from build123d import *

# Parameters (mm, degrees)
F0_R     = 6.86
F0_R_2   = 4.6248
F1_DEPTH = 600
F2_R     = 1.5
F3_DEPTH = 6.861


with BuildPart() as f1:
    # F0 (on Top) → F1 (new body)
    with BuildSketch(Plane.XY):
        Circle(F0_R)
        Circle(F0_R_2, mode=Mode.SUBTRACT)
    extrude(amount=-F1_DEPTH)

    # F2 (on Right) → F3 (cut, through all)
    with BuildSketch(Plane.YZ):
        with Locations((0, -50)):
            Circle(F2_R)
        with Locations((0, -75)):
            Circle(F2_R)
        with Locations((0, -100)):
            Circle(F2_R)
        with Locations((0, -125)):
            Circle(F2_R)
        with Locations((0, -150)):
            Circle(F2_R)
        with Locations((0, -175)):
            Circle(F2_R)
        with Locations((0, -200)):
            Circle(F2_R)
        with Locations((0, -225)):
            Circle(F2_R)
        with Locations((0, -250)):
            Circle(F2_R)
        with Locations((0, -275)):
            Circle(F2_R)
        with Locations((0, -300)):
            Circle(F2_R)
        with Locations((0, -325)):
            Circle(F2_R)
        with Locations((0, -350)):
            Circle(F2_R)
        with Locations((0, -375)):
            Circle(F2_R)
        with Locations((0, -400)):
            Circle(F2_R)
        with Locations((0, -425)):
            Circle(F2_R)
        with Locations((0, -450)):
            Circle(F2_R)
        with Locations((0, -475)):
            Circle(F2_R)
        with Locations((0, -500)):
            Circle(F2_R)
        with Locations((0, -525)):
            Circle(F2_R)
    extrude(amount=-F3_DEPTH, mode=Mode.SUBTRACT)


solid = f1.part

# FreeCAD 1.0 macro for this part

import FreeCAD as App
import Part
import Sketcher
Q = App.Units.Quantity

doc = App.newDocument("Part")
body = doc.addObject("PartDesign::Body", "Body")

sketch1 = body.newObject("Sketcher::SketchObject", "Sketch")
sketch1.AttachmentSupport = (doc.getObject("XY_Plane"), [""])
sketch1.MapMode = "FlatFace"
sketch1.addGeometry(Part.Circle(App.Vector(0, 0, 0), App.Vector(0, 0, 1), 6.9), False)
sketch1.addGeometry(Part.Circle(App.Vector(0, 0, 0), App.Vector(0, 0, 1), 4.6), False)
sketch1.addConstraint(Sketcher.Constraint("Coincident", 0, 3, -1, 1))
sketch1.addConstraint(Sketcher.Constraint("Coincident", 1, 3, -1, 1))
sketch1.addConstraint(Sketcher.Constraint("Diameter", 0, Q("13.72 mm")))
sketch1.addConstraint(Sketcher.Constraint("Diameter", 1, Q("9.2496 mm")))
pad1 = body.newObject("PartDesign::Pad", "Pad")
pad1.Profile = sketch1
pad1.Length = 600
pad1.Reversed = True

sketch2 = body.newObject("Sketcher::SketchObject", "Sketch001")
sketch2.AttachmentSupport = (doc.getObject("YZ_Plane"), [""])
sketch2.MapMode = "FlatFace"
sketch2.addGeometry(Part.Circle(App.Vector(0, -50, 0), App.Vector(0, 0, 1), 1.5), False)
sketch2.addGeometry(Part.Circle(App.Vector(0, -75, 0), App.Vector(0, 0, 1), 1.5), False)
sketch2.addGeometry(Part.Circle(App.Vector(0, -100, 0), App.Vector(0, 0, 1), 1.5), False)
sketch2.addGeometry(Part.Circle(App.Vector(0, -125, 0), App.Vector(0, 0, 1), 1.5), False)
sketch2.addGeometry(Part.Circle(App.Vector(0, -150, 0), App.Vector(0, 0, 1), 1.5), False)
sketch2.addGeometry(Part.Circle(App.Vector(0, -175, 0), App.Vector(0, 0, 1), 1.5), False)
sketch2.addGeometry(Part.Circle(App.Vector(0, -200, 0), App.Vector(0, 0, 1), 1.5), False)
sketch2.addGeometry(Part.Circle(App.Vector(0, -225, 0), App.Vector(0, 0, 1), 1.5), False)
sketch2.addGeometry(Part.Circle(App.Vector(0, -250, 0), App.Vector(0, 0, 1), 1.5), False)
sketch2.addGeometry(Part.Circle(App.Vector(0, -275, 0), App.Vector(0, 0, 1), 1.5), False)
sketch2.addGeometry(Part.Circle(App.Vector(0, -300, 0), App.Vector(0, 0, 1), 1.5), False)
sketch2.addGeometry(Part.Circle(App.Vector(0, -325, 0), App.Vector(0, 0, 1), 1.5), False)
sketch2.addGeometry(Part.Circle(App.Vector(0, -350, 0), App.Vector(0, 0, 1), 1.5), False)
sketch2.addGeometry(Part.Circle(App.Vector(0, -375, 0), App.Vector(0, 0, 1), 1.5), False)
sketch2.addGeometry(Part.Circle(App.Vector(0, -400, 0), App.Vector(0, 0, 1), 1.5), False)
sketch2.addGeometry(Part.Circle(App.Vector(0, -425, 0), App.Vector(0, 0, 1), 1.5), False)
sketch2.addGeometry(Part.Circle(App.Vector(0, -450, 0), App.Vector(0, 0, 1), 1.5), False)
sketch2.addGeometry(Part.Circle(App.Vector(0, -475, 0), App.Vector(0, 0, 1), 1.5), False)
sketch2.addGeometry(Part.Circle(App.Vector(0, -500, 0), App.Vector(0, 0, 1), 1.5), False)
sketch2.addGeometry(Part.Circle(App.Vector(0, -525, 0), App.Vector(0, 0, 1), 1.5), False)
sketch2.addConstraint(Sketcher.Constraint("Equal", 0, 1))
sketch2.addConstraint(Sketcher.Constraint("Equal", 1, 2))
sketch2.addConstraint(Sketcher.Constraint("Equal", 2, 3))
sketch2.addConstraint(Sketcher.Constraint("Equal", 3, 4))
sketch2.addConstraint(Sketcher.Constraint("Equal", 4, 5))
sketch2.addConstraint(Sketcher.Constraint("Equal", 5, 6))
sketch2.addConstraint(Sketcher.Constraint("Equal", 6, 7))
sketch2.addConstraint(Sketcher.Constraint("Equal", 7, 8))
sketch2.addConstraint(Sketcher.Constraint("Equal", 8, 9))
sketch2.addConstraint(Sketcher.Constraint("Equal", 9, 10))
sketch2.addConstraint(Sketcher.Constraint("Equal", 10, 11))
sketch2.addConstraint(Sketcher.Constraint("Equal", 11, 12))
sketch2.addConstraint(Sketcher.Constraint("Equal", 12, 13))
sketch2.addConstraint(Sketcher.Constraint("Equal", 13, 14))
sketch2.addConstraint(Sketcher.Constraint("Equal", 14, 15))
sketch2.addConstraint(Sketcher.Constraint("Equal", 15, 16))
sketch2.addConstraint(Sketcher.Constraint("Equal", 16, 17))
sketch2.addConstraint(Sketcher.Constraint("Equal", 17, 18))
sketch2.addConstraint(Sketcher.Constraint("Equal", 18, 19))
sketch2.addConstraint(Sketcher.Constraint("PointOnObject", 0, 3, -2))
sketch2.addConstraint(Sketcher.Constraint("PointOnObject", 1, 3, -2))
sketch2.addConstraint(Sketcher.Constraint("PointOnObject", 2, 3, -2))
sketch2.addConstraint(Sketcher.Constraint("PointOnObject", 3, 3, -2))
sketch2.addConstraint(Sketcher.Constraint("PointOnObject", 4, 3, -2))
sketch2.addConstraint(Sketcher.Constraint("PointOnObject", 5, 3, -2))
sketch2.addConstraint(Sketcher.Constraint("PointOnObject", 6, 3, -2))
sketch2.addConstraint(Sketcher.Constraint("PointOnObject", 7, 3, -2))
sketch2.addConstraint(Sketcher.Constraint("PointOnObject", 8, 3, -2))
sketch2.addConstraint(Sketcher.Constraint("PointOnObject", 9, 3, -2))
sketch2.addConstraint(Sketcher.Constraint("PointOnObject", 10, 3, -2))
sketch2.addConstraint(Sketcher.Constraint("PointOnObject", 11, 3, -2))
sketch2.addConstraint(Sketcher.Constraint("PointOnObject", 12, 3, -2))
sketch2.addConstraint(Sketcher.Constraint("PointOnObject", 13, 3, -2))
sketch2.addConstraint(Sketcher.Constraint("PointOnObject", 14, 3, -2))
sketch2.addConstraint(Sketcher.Constraint("PointOnObject", 15, 3, -2))
sketch2.addConstraint(Sketcher.Constraint("PointOnObject", 16, 3, -2))
sketch2.addConstraint(Sketcher.Constraint("PointOnObject", 17, 3, -2))
sketch2.addConstraint(Sketcher.Constraint("PointOnObject", 18, 3, -2))
sketch2.addConstraint(Sketcher.Constraint("PointOnObject", 19, 3, -2))
sketch2.addConstraint(Sketcher.Constraint("Diameter", 0, Q("3 mm")))
sketch2.addConstraint(Sketcher.Constraint("DistanceY", 0, 3, -1, 1, Q("50 mm")))
sketch2.addConstraint(Sketcher.Constraint("DistanceY", 1, 3, -1, 1, Q("75 mm")))
sketch2.addConstraint(Sketcher.Constraint("DistanceY", 2, 3, -1, 1, Q("100 mm")))
sketch2.addConstraint(Sketcher.Constraint("DistanceY", 3, 3, -1, 1, Q("125 mm")))
sketch2.addConstraint(Sketcher.Constraint("DistanceY", 4, 3, -1, 1, Q("150 mm")))
sketch2.addConstraint(Sketcher.Constraint("DistanceY", 5, 3, -1, 1, Q("175 mm")))
sketch2.addConstraint(Sketcher.Constraint("DistanceY", 6, 3, -1, 1, Q("200 mm")))
sketch2.addConstraint(Sketcher.Constraint("DistanceY", 7, 3, -1, 1, Q("225 mm")))
sketch2.addConstraint(Sketcher.Constraint("DistanceY", 8, 3, -1, 1, Q("250 mm")))
sketch2.addConstraint(Sketcher.Constraint("DistanceY", 9, 3, -1, 1, Q("275 mm")))
sketch2.addConstraint(Sketcher.Constraint("DistanceY", 10, 3, -1, 1, Q("300 mm")))
sketch2.addConstraint(Sketcher.Constraint("DistanceY", 11, 3, -1, 1, Q("325 mm")))
sketch2.addConstraint(Sketcher.Constraint("DistanceY", 12, 3, -1, 1, Q("350 mm")))
sketch2.addConstraint(Sketcher.Constraint("DistanceY", 13, 3, -1, 1, Q("375 mm")))
sketch2.addConstraint(Sketcher.Constraint("DistanceY", 14, 3, -1, 1, Q("400 mm")))
sketch2.addConstraint(Sketcher.Constraint("DistanceY", 15, 3, -1, 1, Q("425 mm")))
sketch2.addConstraint(Sketcher.Constraint("DistanceY", 16, 3, -1, 1, Q("450 mm")))
sketch2.addConstraint(Sketcher.Constraint("DistanceY", 17, 3, -1, 1, Q("475 mm")))
sketch2.addConstraint(Sketcher.Constraint("DistanceY", 18, 3, -1, 1, Q("500 mm")))
sketch2.addConstraint(Sketcher.Constraint("DistanceY", 19, 3, -1, 1, Q("525 mm")))
pocket1 = body.newObject("PartDesign::Pocket", "Pocket")
pocket1.Profile = sketch2
pocket1.Type = "ThroughAll"

doc.recompute()
